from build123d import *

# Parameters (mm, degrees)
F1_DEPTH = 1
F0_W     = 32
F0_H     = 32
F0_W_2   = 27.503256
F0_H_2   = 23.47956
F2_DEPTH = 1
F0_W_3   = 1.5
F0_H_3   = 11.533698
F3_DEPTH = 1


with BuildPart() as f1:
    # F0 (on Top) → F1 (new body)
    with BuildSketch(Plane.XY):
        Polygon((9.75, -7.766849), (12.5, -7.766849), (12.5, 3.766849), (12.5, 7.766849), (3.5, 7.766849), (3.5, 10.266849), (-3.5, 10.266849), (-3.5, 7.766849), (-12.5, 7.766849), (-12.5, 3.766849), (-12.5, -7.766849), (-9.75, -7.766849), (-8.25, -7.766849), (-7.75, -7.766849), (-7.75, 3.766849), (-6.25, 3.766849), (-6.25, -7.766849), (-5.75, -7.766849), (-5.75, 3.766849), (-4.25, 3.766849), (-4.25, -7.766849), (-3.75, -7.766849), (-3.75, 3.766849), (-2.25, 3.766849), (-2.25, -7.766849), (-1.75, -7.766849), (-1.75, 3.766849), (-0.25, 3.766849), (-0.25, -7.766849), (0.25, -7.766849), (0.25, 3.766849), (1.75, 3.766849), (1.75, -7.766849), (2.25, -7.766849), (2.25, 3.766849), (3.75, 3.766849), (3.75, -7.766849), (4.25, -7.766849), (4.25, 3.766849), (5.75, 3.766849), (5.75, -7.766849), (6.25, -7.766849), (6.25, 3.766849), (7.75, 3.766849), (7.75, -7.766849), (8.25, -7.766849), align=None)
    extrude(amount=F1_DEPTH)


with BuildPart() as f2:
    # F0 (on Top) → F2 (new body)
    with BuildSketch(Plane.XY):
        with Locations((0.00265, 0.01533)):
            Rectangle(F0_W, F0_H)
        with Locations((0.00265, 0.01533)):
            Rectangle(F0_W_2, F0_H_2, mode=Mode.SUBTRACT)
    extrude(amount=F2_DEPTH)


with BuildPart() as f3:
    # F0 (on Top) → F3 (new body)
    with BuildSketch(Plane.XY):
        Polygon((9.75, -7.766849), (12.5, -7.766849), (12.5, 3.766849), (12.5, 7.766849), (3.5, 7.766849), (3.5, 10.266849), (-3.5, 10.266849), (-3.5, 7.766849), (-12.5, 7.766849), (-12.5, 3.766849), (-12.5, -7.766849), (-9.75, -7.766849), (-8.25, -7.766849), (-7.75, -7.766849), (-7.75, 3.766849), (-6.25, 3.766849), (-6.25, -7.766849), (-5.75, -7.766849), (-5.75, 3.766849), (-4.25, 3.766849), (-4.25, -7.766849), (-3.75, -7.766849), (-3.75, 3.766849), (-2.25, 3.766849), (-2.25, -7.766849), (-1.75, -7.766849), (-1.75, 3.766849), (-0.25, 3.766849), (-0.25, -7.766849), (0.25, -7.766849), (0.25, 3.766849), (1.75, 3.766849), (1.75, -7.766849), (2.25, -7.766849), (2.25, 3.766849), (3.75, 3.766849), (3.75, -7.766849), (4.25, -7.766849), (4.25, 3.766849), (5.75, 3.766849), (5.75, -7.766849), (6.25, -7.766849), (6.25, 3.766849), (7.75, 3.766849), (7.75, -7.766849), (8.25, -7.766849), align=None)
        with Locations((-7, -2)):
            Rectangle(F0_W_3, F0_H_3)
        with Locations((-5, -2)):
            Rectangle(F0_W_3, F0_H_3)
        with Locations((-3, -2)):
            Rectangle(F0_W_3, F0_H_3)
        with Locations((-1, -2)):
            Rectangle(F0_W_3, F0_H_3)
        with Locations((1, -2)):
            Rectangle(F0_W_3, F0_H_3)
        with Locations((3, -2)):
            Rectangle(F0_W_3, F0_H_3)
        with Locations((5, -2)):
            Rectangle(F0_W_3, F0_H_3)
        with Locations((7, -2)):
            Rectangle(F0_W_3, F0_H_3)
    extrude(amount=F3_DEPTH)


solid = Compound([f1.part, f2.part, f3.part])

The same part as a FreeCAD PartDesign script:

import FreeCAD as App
import Part
import Sketcher
Q = App.Units.Quantity


def add_polygon(sketch, points):
    """Adds a closed chain of lines whose ends are joined by coincident constraints."""
    first, n = sketch.GeometryCount, len(points)
    for a, b in zip(points, points[1:] + points[:1]):
        sketch.addGeometry(Part.LineSegment(App.Vector(*a, 0), App.Vector(*b, 0)), False)
    for i in range(n):
        sketch.addConstraint(Sketcher.Constraint("Coincident", first + i, 2, first + (i + 1) % n, 1))

doc = App.newDocument("Part")
params = doc.addObject("Spreadsheet::Sheet", "Params")
for row, (alias, value) in enumerate([
    ("sketch1_width", "9 mm"),
    ("sketch1_width2", "7 mm"),
    ("sketch1_width3", "1.5 mm"),
    ("sketch1_width4", "0.5 mm"),
    ("sketch1_height", "2.5 mm"),
    ("pad1_length", "1 mm"),
    ("sketch2_width", "32 mm"),
    ("pad2_length", "1 mm"),
    ("sketch3_width", "9 mm"),
    ("sketch3_width2", "7 mm"),
    ("sketch3_height", "2.5 mm"),
    ("pad3_length", "1 mm"),
], start=1):
    params.set(f"A{row}", alias)
    params.set(f"B{row}", "=" + value)
    params.setAlias(f"B{row}", alias)

body = doc.addObject("PartDesign::Body", "Body")

# Sketch on XY plane
sketch1 = body.newObject("Sketcher::SketchObject", "Sketch")
sketch1.AttachmentSupport = (doc.getObject("XY_Plane"), [""])
sketch1.MapMode = "FlatFace"
add_polygon(sketch1, [(12.5, -7.766849), (12.5, 7.766849), (3.5, 7.766849), (3.5, 10.266849), (-3.5, 10.266849), (-3.5, 7.766849), (-12.5, 7.766849), (-12.5, -7.766849), (-7.75, -7.766849), (-7.75, 3.766849), (-6.25, 3.766849), (-6.25, -7.766849), (-5.75, -7.766849), (-5.75, 3.766849), (-4.25, 3.766849), (-4.25, -7.766849), (-3.75, -7.766849), (-3.75, 3.766849), (-2.25, 3.766849), (-2.25, -7.766849), (-1.75, -7.766849), (-1.75, 3.766849), (-0.25, 3.766849), (-0.25, -7.766849), (0.25, -7.766849), (0.25, 3.766849), (1.75, 3.766849), (1.75, -7.766849), (2.25, -7.766849), (2.25, 3.766849), (3.75, 3.766849), (3.75, -7.766849), (4.25, -7.766849), (4.25, 3.766849), (5.75, 3.766849), (5.75, -7.766849), (6.25, -7.766849), (6.25, 3.766849), (7.75, 3.766849), (7.75, -7.766849)])  # lines 0-39
sketch1.addConstraint([
    Sketcher.Constraint("Vertical", 0),
    Sketcher.Constraint("Horizontal", 1),
    Sketcher.Constraint("Vertical", 2),
    Sketcher.Constraint("Horizontal", 3),
    Sketcher.Constraint("Vertical", 4),
    Sketcher.Constraint("Horizontal", 5),
    Sketcher.Constraint("Vertical", 6),
    Sketcher.Constraint("Horizontal", 7),
    Sketcher.Constraint("Vertical", 8),
    Sketcher.Constraint("Horizontal", 9),
    Sketcher.Constraint("Vertical", 10),
    Sketcher.Constraint("Horizontal", 11),
    Sketcher.Constraint("Vertical", 12),
    Sketcher.Constraint("Horizontal", 13),
    Sketcher.Constraint("Vertical", 14),
    Sketcher.Constraint("Horizontal", 15),
    Sketcher.Constraint("Vertical", 16),
    Sketcher.Constraint("Horizontal", 17),
    Sketcher.Constraint("Vertical", 18),
    Sketcher.Constraint("Horizontal", 19),
    Sketcher.Constraint("Vertical", 20),
    Sketcher.Constraint("Horizontal", 21),
    Sketcher.Constraint("Vertical", 22),
    Sketcher.Constraint("Horizontal", 23),
    Sketcher.Constraint("Vertical", 24),
    Sketcher.Constraint("Horizontal", 25),
    Sketcher.Constraint("Vertical", 26),
    Sketcher.Constraint("Horizontal", 27),
    Sketcher.Constraint("Vertical", 28),
    Sketcher.Constraint("Horizontal", 29),
    Sketcher.Constraint("Vertical", 30),
    Sketcher.Constraint("Horizontal", 31),
    Sketcher.Constraint("Vertical", 32),
    Sketcher.Constraint("Horizontal", 33),
    Sketcher.Constraint("Vertical", 34),
    Sketcher.Constraint("Horizontal", 35),
    Sketcher.Constraint("Vertical", 36),
    Sketcher.Constraint("Horizontal", 37),
    Sketcher.Constraint("Vertical", 38),
    Sketcher.Constraint("Horizontal", 39),
    Sketcher.Constraint("Symmetric", 0, 2, 6, 2, -1, 1),
    Sketcher.Constraint("Symmetric", 1, 2, 4, 2, -2),
    Sketcher.Constraint("Symmetric", 21, 2, 24, 2, -2),
    Sketcher.Constraint("Symmetric", 19, 2, 26, 2, -2),
    Sketcher.Constraint("Symmetric", 17, 2, 28, 2, -2),
    Sketcher.Constraint("Symmetric", 15, 2, 30, 2, -2),
    Sketcher.Constraint("Symmetric", 13, 2, 32, 2, -2),
    Sketcher.Constraint("Symmetric", 11, 2, 34, 2, -2),
    Sketcher.Constraint("Symmetric", 9, 2, 36, 2, -2),
    Sketcher.Constraint("Symmetric", 7, 2, 38, 2, -2),
    Sketcher.Constraint("Horizontal", 7, 2, 10, 2),
    Sketcher.Constraint("Horizontal", 9, 2, 12, 2),
    Sketcher.Constraint("Horizontal", 11, 2, 14, 2),
    Sketcher.Constraint("Horizontal", 13, 2, 16, 2),
    Sketcher.Constraint("Horizontal", 15, 2, 18, 2),
    Sketcher.Constraint("Horizontal", 17, 2, 20, 2),
    Sketcher.Constraint("Horizontal", 19, 2, 22, 2),
    Sketcher.Constraint("Equal", 9, 13),
    Sketcher.Constraint("Equal", 11, 15),
    Sketcher.Constraint("Equal", 13, 17),
    Sketcher.Constraint("Equal", 15, 19),
    Sketcher.Constraint("Equal", 17, 21),
    Sketcher.Constraint("Equal", 19, 23),
    Sketcher.Constraint("DistanceX", 1, 2, 1, 1, Q("9 mm")),
    Sketcher.Constraint("DistanceX", 3, 2, 3, 1, Q("7 mm")),
    Sketcher.Constraint("DistanceX", 9, 1, 9, 2, Q("1.5 mm")),
    Sketcher.Constraint("DistanceX", 11, 1, 11, 2, Q("0.5 mm")),
    Sketcher.Constraint("DistanceY", 2, 1, 2, 2, Q("2.5 mm")),
    Sketcher.Constraint("DistanceY", 8, 2, 4, 2, Q("4 mm")),
    Sketcher.Constraint("DistanceY", 6, 2, 3, 2, Q("18.033698 mm")),
])
sketch1.setExpression("Constraints[103]", "Params.sketch1_width")
sketch1.setExpression("Constraints[104]", "Params.sketch1_width2")
sketch1.setExpression("Constraints[105]", "Params.sketch1_width3")
sketch1.setExpression("Constraints[106]", "Params.sketch1_width4")
sketch1.setExpression("Constraints[107]", "Params.sketch1_height")
pad1 = body.newObject("PartDesign::Pad", "Pad")
pad1.Profile = sketch1
pad1.setExpression("Length", "Params.pad1_length")
body2 = doc.addObject("PartDesign::Body", "Body001")

# Sketch on XY plane
sketch2 = body2.newObject("Sketcher::SketchObject", "Sketch001")
sketch2.AttachmentSupport = (doc.getObject("XY_Plane001"), [""])
sketch2.MapMode = "FlatFace"
add_polygon(sketch2, [(-15.99735, 16.01533), (-15.99735, -15.98467), (16.00265, -15.98467), (16.00265, 16.01533)])  # lines 0-3
add_polygon(sketch2, [(13.754278, -11.72445), (-13.748978, -11.72445), (-13.748978, 11.75511), (13.754278, 11.75511)])  # lines 4-7
sketch2.addConstraint([
    Sketcher.Constraint("Vertical", 0),
    Sketcher.Constraint("Horizontal", 1),
    Sketcher.Constraint("Vertical", 2),
    Sketcher.Constraint("Horizontal", 3),
    Sketcher.Constraint("Horizontal", 4),
    Sketcher.Constraint("Vertical", 5),
    Sketcher.Constraint("Horizontal", 6),
    Sketcher.Constraint("Vertical", 7),
    Sketcher.Constraint("Equal", 3, 0),
    Sketcher.Constraint("DistanceX", 1, 1, 1, 2, Q("32 mm")),
    Sketcher.Constraint("DistanceY", 5, 1, 5, 2, Q("23.47956 mm")),
    Sketcher.Constraint("DistanceX", 4, 2, 4, 1, Q("27.503256 mm")),
    Sketcher.Constraint("DistanceX", 0, 2, -1, 1, Q("15.99735 mm")),
    Sketcher.Constraint("DistanceY", 0, 2, -1, 1, Q("15.98467 mm")),
    Sketcher.Constraint("DistanceY", 4, 2, -1, 1, Q("11.72445 mm")),
    Sketcher.Constraint("DistanceX", 6, 2, 2, 2, Q("2.248372 mm")),
])
sketch2.setExpression("Constraints[17]", "Params.sketch2_width")
pad2 = body2.newObject("PartDesign::Pad", "Pad001")
pad2.Profile = sketch2
pad2.setExpression("Length", "Params.pad2_length")
body3 = doc.addObject("PartDesign::Body", "Body002")

# Sketch on XY plane
sketch3 = body3.newObject("Sketcher::SketchObject", "Sketch002")
sketch3.AttachmentSupport = (doc.getObject("XY_Plane002"), [""])
sketch3.MapMode = "FlatFace"
add_polygon(sketch3, [(12.5, -7.766849), (12.5, 7.766849), (3.5, 7.766849), (3.5, 10.266849), (-3.5, 10.266849), (-3.5, 7.766849), (-12.5, 7.766849), (-12.5, -7.766849)])  # lines 0-7
sketch3.addConstraint([
    Sketcher.Constraint("Vertical", 0),
    Sketcher.Constraint("Horizontal", 1),
    Sketcher.Constraint("Vertical", 2),
    Sketcher.Constraint("Horizontal", 3),
    Sketcher.Constraint("Vertical", 4),
    Sketcher.Constraint("Horizontal", 5),
    Sketcher.Constraint("Vertical", 6),
    Sketcher.Constraint("Horizontal", 7),
    Sketcher.Constraint("Symmetric", 0, 2, 6, 2, -1, 1),
    Sketcher.Constraint("Symmetric", 1, 2, 4, 2, -2),
    Sketcher.Constraint("DistanceX", 1, 2, 1, 1, Q("9 mm")),
    Sketcher.Constraint("DistanceX", 3, 2, 3, 1, Q("7 mm")),
    Sketcher.Constraint("DistanceY", 2, 1, 2, 2, Q("2.5 mm")),
    Sketcher.Constraint("DistanceY", 6, 2, 3, 2, Q("18.033698 mm")),
])
sketch3.setExpression("Constraints[18]", "Params.sketch3_width")
sketch3.setExpression("Constraints[19]", "Params.sketch3_width2")
sketch3.setExpression("Constraints[20]", "Params.sketch3_height")
pad3 = body3.newObject("PartDesign::Pad", "Pad002")
pad3.Profile = sketch3
pad3.setExpression("Length", "Params.pad3_length")

doc.recompute()
